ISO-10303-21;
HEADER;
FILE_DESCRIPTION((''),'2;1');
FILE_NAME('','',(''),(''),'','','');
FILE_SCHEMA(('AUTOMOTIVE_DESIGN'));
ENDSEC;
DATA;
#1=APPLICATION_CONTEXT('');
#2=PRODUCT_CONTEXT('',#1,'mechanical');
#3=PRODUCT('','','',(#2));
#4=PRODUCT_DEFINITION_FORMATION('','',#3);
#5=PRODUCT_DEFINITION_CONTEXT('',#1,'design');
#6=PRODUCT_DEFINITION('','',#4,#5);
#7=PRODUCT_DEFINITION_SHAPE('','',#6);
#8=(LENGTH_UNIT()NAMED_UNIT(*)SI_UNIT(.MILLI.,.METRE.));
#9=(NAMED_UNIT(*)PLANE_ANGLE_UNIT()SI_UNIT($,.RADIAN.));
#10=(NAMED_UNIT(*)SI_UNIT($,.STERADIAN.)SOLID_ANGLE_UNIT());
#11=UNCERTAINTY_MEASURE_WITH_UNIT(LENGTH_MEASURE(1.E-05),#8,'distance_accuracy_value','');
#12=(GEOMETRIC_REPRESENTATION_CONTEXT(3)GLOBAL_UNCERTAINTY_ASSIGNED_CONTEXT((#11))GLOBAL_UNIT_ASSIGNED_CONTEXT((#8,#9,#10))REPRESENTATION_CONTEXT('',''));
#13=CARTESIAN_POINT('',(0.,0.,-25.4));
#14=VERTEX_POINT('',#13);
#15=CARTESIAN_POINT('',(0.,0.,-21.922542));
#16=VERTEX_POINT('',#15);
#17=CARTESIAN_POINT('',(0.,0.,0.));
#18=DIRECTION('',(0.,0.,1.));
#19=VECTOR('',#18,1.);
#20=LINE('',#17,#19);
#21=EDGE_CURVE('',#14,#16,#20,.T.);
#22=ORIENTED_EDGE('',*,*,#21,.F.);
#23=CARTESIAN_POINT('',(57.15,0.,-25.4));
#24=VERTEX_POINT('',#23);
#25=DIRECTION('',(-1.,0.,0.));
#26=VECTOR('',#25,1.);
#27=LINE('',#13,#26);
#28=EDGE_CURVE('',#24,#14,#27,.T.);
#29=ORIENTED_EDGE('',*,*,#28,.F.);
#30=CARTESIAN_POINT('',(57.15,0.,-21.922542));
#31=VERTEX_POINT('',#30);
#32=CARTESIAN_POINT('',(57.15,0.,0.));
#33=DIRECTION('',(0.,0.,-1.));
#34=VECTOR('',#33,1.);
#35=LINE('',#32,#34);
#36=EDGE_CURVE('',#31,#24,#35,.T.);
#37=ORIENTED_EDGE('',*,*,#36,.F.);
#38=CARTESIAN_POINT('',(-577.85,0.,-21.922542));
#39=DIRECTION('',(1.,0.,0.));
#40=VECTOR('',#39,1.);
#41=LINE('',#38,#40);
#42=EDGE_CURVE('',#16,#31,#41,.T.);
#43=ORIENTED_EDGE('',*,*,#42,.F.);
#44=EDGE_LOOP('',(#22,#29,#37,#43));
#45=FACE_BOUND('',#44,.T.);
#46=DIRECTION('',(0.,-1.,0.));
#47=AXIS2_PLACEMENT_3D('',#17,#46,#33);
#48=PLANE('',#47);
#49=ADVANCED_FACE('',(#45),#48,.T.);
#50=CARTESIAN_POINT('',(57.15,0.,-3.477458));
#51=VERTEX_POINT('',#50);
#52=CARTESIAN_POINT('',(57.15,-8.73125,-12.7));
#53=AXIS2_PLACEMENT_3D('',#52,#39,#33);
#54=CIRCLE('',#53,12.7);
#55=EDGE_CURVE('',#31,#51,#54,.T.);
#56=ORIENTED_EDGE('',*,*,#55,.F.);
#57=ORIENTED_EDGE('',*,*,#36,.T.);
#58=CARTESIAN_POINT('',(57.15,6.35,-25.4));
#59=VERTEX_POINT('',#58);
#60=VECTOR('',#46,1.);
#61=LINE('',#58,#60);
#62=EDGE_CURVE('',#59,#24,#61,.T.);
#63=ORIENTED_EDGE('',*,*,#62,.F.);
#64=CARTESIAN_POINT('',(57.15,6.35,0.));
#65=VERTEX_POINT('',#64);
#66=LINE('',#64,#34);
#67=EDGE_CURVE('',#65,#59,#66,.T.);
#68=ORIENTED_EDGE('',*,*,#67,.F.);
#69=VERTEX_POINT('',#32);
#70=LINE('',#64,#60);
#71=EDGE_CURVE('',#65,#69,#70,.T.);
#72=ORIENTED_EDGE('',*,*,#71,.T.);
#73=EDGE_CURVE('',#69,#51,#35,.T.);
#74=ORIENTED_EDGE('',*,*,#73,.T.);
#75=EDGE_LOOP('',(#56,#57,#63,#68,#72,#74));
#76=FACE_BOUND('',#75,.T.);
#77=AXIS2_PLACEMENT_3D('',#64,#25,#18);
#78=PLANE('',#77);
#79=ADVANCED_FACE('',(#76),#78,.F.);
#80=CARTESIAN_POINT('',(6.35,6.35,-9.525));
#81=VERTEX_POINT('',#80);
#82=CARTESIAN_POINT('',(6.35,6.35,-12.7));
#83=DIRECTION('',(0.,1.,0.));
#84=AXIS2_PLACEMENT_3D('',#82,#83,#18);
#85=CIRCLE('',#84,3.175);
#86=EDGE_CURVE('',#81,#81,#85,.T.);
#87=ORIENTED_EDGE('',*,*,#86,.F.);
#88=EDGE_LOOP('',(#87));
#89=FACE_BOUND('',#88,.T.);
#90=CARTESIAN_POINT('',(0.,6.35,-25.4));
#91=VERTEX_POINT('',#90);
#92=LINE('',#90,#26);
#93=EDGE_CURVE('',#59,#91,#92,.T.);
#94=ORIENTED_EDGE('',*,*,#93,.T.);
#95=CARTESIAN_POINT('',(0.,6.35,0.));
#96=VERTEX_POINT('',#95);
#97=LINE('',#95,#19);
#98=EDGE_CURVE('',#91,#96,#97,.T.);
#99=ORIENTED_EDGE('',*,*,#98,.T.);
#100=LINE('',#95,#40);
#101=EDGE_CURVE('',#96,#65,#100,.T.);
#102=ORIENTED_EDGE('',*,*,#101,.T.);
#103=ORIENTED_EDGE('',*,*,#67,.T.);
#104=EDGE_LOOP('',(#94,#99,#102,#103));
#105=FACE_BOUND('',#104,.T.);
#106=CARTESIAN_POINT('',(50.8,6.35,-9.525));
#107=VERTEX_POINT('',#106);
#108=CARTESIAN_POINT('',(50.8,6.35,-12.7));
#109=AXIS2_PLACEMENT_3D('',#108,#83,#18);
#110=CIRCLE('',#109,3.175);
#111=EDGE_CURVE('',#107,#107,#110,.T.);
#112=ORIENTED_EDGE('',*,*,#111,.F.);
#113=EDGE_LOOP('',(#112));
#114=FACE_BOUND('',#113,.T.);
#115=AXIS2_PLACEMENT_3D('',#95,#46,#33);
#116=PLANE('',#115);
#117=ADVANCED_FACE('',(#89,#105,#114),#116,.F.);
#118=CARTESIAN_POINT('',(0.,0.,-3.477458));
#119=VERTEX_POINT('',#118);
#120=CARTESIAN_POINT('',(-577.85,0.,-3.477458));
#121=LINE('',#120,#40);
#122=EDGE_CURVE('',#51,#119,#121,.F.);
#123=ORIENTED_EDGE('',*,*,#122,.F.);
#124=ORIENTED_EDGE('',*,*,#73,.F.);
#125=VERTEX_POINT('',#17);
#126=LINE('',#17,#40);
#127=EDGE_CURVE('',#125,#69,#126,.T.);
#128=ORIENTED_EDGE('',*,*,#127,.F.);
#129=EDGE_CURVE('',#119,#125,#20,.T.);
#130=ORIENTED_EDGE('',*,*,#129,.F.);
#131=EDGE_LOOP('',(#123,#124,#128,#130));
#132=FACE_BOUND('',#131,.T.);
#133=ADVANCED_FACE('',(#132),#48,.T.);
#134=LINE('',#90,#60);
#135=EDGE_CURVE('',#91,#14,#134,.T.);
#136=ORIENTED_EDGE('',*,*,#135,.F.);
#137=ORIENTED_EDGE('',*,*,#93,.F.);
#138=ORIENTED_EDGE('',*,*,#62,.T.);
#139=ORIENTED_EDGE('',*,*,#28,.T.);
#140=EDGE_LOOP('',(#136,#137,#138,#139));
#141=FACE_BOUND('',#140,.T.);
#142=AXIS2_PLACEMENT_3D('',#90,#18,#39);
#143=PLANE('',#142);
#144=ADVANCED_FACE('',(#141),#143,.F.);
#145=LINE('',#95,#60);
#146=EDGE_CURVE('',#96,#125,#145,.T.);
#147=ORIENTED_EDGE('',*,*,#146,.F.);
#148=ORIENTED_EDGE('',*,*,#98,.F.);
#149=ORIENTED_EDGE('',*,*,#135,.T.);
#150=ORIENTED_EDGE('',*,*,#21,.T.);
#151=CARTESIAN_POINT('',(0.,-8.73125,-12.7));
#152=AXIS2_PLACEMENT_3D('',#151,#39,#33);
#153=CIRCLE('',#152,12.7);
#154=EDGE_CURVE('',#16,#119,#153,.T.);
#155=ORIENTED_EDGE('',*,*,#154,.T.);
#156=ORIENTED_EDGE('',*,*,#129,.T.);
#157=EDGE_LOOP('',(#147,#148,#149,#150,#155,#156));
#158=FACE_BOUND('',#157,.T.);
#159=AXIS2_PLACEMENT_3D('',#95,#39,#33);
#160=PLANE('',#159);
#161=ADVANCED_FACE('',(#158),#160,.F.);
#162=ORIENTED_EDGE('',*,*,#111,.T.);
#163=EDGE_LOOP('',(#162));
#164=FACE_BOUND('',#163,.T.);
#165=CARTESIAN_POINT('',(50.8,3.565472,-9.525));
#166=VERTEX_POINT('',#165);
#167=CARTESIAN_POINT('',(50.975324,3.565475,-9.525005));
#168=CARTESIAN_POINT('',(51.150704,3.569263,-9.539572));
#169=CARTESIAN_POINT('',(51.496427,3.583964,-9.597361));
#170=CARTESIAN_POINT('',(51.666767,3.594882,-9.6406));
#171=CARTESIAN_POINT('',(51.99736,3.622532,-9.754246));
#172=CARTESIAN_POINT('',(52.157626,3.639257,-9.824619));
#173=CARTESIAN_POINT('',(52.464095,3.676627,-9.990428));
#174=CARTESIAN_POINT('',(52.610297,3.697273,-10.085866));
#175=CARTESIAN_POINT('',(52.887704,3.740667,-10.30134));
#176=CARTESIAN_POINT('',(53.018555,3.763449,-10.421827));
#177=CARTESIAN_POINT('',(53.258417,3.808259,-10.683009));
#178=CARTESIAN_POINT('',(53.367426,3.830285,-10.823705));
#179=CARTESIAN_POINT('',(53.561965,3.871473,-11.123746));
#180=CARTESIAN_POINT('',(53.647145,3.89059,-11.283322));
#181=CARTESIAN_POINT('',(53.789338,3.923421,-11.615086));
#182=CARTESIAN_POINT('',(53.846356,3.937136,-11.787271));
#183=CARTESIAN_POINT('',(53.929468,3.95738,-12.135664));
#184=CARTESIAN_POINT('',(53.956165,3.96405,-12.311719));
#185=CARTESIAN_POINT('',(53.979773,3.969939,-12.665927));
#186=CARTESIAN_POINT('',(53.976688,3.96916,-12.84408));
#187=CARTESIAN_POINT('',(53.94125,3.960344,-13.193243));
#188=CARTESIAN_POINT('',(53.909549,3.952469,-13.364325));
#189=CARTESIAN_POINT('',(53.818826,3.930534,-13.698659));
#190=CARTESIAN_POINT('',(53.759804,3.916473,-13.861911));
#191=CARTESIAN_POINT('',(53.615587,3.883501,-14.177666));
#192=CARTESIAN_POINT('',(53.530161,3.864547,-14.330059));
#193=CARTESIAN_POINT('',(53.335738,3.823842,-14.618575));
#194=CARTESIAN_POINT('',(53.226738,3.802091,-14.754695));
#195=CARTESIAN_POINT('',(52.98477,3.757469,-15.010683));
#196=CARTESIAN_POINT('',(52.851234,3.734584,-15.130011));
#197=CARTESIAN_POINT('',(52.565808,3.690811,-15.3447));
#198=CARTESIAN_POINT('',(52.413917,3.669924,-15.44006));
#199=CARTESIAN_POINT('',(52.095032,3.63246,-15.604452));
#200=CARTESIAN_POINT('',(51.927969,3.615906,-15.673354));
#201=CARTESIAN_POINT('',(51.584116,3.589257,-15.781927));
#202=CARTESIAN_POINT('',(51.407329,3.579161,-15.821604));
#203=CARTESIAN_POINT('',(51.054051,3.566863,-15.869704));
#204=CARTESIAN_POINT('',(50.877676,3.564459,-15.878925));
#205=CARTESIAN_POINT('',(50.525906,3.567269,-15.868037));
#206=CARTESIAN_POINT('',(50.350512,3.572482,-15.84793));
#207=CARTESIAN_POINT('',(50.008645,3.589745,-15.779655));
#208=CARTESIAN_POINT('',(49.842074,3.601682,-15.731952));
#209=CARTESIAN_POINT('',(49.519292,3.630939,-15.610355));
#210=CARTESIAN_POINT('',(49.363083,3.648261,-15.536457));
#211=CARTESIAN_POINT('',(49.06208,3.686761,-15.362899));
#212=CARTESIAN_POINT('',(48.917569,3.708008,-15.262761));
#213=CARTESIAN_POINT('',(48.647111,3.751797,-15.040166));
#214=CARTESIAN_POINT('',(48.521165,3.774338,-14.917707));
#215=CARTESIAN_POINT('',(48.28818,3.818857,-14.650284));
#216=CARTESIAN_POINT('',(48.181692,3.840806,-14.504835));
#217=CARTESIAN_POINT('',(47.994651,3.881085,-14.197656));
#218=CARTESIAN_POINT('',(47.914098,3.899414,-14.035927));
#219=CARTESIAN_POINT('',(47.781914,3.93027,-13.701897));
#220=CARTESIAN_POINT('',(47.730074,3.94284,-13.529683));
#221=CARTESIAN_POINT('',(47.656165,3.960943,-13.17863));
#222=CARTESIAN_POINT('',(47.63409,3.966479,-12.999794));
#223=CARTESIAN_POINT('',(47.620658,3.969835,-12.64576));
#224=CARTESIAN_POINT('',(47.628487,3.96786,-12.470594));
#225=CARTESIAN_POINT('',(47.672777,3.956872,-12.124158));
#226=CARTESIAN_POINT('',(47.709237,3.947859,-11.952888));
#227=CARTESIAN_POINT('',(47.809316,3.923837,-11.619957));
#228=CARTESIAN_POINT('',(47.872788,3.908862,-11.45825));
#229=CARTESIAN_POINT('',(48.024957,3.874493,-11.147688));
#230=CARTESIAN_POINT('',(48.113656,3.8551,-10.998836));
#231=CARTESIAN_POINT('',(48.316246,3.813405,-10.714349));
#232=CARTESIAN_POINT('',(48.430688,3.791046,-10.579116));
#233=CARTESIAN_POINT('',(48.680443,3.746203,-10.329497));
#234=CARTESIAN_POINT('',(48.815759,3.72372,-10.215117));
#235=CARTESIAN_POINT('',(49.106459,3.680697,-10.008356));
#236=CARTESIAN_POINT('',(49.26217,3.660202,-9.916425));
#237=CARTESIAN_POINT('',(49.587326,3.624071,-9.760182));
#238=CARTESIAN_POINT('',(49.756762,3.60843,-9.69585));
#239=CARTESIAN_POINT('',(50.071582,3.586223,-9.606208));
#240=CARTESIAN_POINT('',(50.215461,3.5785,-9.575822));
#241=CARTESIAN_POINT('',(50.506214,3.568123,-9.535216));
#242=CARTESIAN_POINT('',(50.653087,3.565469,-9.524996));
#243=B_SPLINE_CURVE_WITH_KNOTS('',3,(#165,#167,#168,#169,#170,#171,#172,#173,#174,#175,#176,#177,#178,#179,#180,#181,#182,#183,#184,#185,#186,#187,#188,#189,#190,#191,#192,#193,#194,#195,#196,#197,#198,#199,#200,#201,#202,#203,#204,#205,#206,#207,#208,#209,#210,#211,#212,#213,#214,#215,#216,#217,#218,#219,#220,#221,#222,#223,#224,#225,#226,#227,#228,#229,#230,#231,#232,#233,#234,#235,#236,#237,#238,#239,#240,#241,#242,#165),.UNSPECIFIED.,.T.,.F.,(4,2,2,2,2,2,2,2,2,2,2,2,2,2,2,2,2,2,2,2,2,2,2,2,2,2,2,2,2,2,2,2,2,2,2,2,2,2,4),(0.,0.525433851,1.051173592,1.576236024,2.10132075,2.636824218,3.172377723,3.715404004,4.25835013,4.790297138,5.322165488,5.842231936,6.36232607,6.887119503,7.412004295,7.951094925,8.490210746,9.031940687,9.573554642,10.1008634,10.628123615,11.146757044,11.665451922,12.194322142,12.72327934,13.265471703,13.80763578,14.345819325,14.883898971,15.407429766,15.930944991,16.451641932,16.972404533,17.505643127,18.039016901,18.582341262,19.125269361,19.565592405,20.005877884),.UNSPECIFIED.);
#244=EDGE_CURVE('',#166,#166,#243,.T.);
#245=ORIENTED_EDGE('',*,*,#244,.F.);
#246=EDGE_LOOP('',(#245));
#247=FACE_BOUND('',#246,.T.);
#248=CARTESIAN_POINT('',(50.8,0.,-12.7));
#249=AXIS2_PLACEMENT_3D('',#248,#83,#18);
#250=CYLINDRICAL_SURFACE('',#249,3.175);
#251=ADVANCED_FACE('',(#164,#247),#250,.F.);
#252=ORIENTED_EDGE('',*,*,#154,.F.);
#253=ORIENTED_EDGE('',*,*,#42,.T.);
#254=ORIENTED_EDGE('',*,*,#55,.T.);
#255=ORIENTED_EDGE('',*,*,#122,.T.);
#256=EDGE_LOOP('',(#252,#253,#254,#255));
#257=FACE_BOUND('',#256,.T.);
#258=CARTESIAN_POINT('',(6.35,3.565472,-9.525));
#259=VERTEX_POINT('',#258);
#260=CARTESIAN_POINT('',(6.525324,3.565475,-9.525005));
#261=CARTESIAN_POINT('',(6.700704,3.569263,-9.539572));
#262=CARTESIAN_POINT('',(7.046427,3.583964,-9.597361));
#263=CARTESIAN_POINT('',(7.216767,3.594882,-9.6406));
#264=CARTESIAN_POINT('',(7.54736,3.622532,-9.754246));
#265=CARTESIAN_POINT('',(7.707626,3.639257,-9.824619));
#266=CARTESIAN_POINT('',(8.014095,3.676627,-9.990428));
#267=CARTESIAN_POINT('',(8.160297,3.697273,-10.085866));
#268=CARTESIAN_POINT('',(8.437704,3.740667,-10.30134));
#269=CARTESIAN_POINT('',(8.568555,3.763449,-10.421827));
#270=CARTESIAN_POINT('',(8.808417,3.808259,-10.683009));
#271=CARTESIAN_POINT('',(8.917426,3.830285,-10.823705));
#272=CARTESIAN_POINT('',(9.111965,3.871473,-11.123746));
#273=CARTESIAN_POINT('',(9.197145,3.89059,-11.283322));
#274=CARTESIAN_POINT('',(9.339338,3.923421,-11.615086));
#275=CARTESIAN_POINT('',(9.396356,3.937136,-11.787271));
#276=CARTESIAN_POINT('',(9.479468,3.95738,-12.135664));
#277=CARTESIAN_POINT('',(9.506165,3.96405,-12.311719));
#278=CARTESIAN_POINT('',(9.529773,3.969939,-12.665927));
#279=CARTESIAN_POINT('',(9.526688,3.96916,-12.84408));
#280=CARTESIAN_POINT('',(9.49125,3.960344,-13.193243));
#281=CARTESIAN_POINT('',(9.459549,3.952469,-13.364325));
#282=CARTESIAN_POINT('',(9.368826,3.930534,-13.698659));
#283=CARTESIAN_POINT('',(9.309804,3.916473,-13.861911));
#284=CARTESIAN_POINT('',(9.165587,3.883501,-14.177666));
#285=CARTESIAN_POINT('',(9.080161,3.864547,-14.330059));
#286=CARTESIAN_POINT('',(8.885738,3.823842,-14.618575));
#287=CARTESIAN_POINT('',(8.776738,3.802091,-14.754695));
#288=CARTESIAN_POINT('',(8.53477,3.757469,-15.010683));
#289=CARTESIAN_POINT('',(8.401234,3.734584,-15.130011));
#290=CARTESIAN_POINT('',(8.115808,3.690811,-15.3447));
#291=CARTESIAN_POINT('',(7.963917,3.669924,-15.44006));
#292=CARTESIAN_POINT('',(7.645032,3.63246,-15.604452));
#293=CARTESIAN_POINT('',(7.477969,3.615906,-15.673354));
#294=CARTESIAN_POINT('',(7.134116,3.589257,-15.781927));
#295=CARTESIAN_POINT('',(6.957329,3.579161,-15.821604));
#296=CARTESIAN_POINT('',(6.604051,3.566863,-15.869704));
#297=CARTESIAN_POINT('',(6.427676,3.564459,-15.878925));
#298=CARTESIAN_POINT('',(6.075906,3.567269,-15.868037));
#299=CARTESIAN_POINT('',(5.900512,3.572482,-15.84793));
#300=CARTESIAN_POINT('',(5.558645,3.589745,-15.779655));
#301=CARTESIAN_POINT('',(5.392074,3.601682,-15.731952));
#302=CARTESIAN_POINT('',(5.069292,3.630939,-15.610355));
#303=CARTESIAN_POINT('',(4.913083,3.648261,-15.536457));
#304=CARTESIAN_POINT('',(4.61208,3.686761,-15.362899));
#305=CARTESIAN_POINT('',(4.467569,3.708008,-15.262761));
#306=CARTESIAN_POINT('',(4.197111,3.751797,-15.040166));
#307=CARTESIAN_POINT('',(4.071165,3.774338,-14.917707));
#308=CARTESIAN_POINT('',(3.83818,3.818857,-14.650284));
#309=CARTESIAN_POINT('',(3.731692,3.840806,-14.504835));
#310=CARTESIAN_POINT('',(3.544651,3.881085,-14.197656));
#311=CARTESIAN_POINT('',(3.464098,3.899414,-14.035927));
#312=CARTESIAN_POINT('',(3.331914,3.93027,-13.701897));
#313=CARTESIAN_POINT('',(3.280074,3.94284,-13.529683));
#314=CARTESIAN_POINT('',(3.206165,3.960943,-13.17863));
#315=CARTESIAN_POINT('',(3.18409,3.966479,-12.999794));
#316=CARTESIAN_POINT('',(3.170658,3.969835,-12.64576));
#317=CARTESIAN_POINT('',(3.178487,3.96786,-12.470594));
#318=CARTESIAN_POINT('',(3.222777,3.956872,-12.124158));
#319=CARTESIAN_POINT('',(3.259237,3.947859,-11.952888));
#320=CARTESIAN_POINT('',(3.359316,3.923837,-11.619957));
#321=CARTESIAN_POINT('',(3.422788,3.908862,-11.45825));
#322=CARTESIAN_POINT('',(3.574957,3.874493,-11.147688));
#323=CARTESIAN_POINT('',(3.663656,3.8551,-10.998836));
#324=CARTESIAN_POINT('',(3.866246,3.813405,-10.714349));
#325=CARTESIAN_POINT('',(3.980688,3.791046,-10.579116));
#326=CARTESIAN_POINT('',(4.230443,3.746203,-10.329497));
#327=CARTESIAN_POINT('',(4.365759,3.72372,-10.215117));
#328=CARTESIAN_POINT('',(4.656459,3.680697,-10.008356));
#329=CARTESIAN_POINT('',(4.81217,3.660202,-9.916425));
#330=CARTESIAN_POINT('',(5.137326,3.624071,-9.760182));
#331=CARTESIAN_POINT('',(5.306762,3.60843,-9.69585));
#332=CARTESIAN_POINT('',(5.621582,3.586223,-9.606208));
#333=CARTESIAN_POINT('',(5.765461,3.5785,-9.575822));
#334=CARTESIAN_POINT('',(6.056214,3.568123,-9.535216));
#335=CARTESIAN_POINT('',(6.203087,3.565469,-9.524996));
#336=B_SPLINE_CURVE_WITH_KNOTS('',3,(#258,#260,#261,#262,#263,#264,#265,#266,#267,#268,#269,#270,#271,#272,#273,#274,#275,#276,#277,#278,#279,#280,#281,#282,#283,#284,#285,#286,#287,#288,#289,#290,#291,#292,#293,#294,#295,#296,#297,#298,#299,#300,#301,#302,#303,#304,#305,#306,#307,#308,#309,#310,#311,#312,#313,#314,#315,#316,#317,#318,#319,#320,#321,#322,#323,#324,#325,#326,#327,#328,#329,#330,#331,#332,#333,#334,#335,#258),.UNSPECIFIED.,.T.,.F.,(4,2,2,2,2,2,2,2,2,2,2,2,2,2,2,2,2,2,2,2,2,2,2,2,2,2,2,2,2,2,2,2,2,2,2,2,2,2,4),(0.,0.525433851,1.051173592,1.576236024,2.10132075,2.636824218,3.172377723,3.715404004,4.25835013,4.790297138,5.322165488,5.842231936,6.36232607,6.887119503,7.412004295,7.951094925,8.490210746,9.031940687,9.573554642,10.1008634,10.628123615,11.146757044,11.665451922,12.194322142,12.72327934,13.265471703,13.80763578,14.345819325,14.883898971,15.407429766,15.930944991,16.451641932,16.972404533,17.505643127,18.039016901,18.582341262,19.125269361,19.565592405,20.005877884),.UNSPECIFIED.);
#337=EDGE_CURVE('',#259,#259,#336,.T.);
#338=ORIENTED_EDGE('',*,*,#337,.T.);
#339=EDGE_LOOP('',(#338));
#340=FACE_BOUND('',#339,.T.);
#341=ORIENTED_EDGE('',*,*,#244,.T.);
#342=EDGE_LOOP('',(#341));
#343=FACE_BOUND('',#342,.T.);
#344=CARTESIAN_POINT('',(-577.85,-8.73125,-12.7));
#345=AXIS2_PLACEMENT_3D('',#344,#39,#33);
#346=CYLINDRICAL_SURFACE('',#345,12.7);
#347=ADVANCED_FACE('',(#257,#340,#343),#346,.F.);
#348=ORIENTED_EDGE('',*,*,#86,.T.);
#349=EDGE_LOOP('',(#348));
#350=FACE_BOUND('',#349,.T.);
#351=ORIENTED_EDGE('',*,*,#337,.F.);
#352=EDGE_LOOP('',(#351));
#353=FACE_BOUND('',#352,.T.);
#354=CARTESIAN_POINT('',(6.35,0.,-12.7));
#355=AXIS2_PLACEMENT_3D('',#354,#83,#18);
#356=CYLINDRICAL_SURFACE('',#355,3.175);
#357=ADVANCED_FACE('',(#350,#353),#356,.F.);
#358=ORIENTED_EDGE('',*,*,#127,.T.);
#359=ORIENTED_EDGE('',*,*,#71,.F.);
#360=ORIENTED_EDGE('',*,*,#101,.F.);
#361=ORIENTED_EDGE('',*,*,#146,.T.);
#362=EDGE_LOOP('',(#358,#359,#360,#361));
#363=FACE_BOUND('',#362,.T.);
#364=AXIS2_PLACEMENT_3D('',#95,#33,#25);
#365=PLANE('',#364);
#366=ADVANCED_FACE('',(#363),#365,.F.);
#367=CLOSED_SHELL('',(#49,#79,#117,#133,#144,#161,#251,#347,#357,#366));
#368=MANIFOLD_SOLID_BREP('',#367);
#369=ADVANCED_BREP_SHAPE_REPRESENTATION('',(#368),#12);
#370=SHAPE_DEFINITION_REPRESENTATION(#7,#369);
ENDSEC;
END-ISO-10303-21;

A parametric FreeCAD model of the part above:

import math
import FreeCAD as App
import Part
import Sketcher
from FreeCAD import Vector
Q = App.Units.Quantity


def add_polygon(sketch, points):
    """Adds a closed chain of lines whose ends are joined by coincident constraints."""
    first, n = sketch.GeometryCount, len(points)
    for a, b in zip(points, points[1:] + points[:1]):
        sketch.addGeometry(Part.LineSegment(App.Vector(*a, 0), App.Vector(*b, 0)), False)
    for i in range(n):
        sketch.addConstraint(Sketcher.Constraint("Coincident", first + i, 2, first + (i + 1) % n, 1))

doc = App.newDocument("Part")
body = doc.addObject("PartDesign::Body", "Body")

# Sketch on XZ plane
sketch1 = doc.addObject("Sketcher::SketchObject", "Sketch")
body.addObject(sketch1)
sketch1.AttachmentSupport = (doc.XZ_Plane, [""])
sketch1.MapMode = "FlatFace"
add_polygon(sketch1, [(0, -25), (0, 0), (57, 0), (57, -25)])  # lines 0-3
sketch1.addConstraint([
    Sketcher.Constraint("Vertical", 0),
    Sketcher.Constraint("Horizontal", 1),
    Sketcher.Constraint("Vertical", 2),
    Sketcher.Constraint("Horizontal", 3),
    Sketcher.Constraint("Coincident", 0, 2, -1, 1),
    Sketcher.Constraint("DistanceY", 0, 1, 0, 2, Q("1 in")),
    Sketcher.Constraint("DistanceX", 1, 1, 1, 2, Q("2.25 in")),
])
pad1 = doc.addObject("PartDesign::Pad", "Pad")
body.addObject(pad1)
pad1.Profile = sketch1
pad1.Length = Q("0.25 in")
pad1.Reversed = True

# Sketch on YZ plane
sketch2 = doc.addObject("Sketcher::SketchObject", "Sketch001")
body.addObject(sketch2)
sketch2.AttachmentSupport = (doc.YZ_Plane, [""])
sketch2.MapMode = "FlatFace"
sketch2.AttachmentOffset = App.Placement(Vector(0, 0, 2.25 * 25.4), App.Rotation())
sketch2.addGeometry([
    Part.ArcOfCircle(Part.Circle(Vector(-9, -13, 0), Vector(0, 0, 1), 13), math.radians(0), math.radians(47)),  # 0
    Part.ArcOfCircle(Part.Circle(Vector(-9, -13, 0), Vector(0, 0, 1), 13), math.radians(47), math.radians(180)),  # 1
    Part.ArcOfCircle(Part.Circle(Vector(-9, -13, 0), Vector(0, 0, 1), 13), math.radians(180), math.radians(270)),  # 2
    Part.ArcOfCircle(Part.Circle(Vector(-9, -13, 0), Vector(0, 0, 1), 13), math.radians(-90), math.radians(-47)),  # 3
    Part.ArcOfCircle(Part.Circle(Vector(-9, -13, 0), Vector(0, 0, 1), 13), math.radians(-47), math.radians(0)),  # 4
], False)
sketch2.addConstraint([
    Sketcher.Constraint("Tangent", 0, 2, 1, 1),
    Sketcher.Constraint("Tangent", 1, 2, 2, 1),
    Sketcher.Constraint("Tangent", 2, 2, 3, 1),
    Sketcher.Constraint("Tangent", 3, 2, 4, 1),
    Sketcher.Constraint("Tangent", 4, 2, 0, 1),
    Sketcher.Constraint("Coincident", 2, 3, 0, 3),
    Sketcher.Constraint("PointOnObject", 0, 2, -2),
    Sketcher.Constraint("PointOnObject", 3, 2, -2),
    Sketcher.Constraint("Horizontal", 4, 3, 1, 2),
    Sketcher.Constraint("Horizontal", 1, 2, 4, 2),
    Sketcher.Constraint("Vertical", 4, 3, 2, 2),
    Sketcher.Constraint("Radius", 0, Q("0.5 in")),
    Sketcher.Constraint("DistanceY", 2, 2, -1, 1, Q("1 in")),
    Sketcher.Constraint("DistanceX", 0, 3, -1, 1, Q("0.34375 in")),
])
pocket1 = doc.addObject("PartDesign::Pocket", "Pocket")
body.addObject(pocket1)
pocket1.Profile = sketch2
pocket1.Length = Q("25 in")

# Sketch on XZ plane
sketch3 = doc.addObject("Sketcher::SketchObject", "Sketch002")
body.addObject(sketch3)
sketch3.AttachmentSupport = (doc.XZ_Plane, [""])
sketch3.MapMode = "FlatFace"
sketch3.AttachmentOffset = App.Placement(Vector(0, 0, -0.25 * 25.4), App.Rotation())
sketch3.addGeometry([
    Part.Circle(Vector(6.3, -12.7, 0), Vector(0, 0, 1), 3.2),
    Part.Circle(Vector(50.8, -12.7, 0), Vector(0, 0, 1), 3.2),
], False)
sketch3.addConstraint([
    Sketcher.Constraint("Equal", 0, 1),
    Sketcher.Constraint("Horizontal", 0, 3, 1, 3),
    Sketcher.Constraint("Diameter", 0, Q("0.25 in")),
    Sketcher.Constraint("DistanceX", -1, 1, 1, 3, Q("2 in")),
    Sketcher.Constraint("DistanceY", 0, 3, -1, 1, Q("0.5 in")),
    Sketcher.Constraint("DistanceX", -1, 1, 0, 3, Q("0.25 in")),
])
pocket2 = doc.addObject("PartDesign::Pocket", "Pocket001")
body.addObject(pocket2)
pocket2.Profile = sketch3
pocket2.Length = Q("0.25 in")
pocket2.Reversed = True

doc.recompute()
